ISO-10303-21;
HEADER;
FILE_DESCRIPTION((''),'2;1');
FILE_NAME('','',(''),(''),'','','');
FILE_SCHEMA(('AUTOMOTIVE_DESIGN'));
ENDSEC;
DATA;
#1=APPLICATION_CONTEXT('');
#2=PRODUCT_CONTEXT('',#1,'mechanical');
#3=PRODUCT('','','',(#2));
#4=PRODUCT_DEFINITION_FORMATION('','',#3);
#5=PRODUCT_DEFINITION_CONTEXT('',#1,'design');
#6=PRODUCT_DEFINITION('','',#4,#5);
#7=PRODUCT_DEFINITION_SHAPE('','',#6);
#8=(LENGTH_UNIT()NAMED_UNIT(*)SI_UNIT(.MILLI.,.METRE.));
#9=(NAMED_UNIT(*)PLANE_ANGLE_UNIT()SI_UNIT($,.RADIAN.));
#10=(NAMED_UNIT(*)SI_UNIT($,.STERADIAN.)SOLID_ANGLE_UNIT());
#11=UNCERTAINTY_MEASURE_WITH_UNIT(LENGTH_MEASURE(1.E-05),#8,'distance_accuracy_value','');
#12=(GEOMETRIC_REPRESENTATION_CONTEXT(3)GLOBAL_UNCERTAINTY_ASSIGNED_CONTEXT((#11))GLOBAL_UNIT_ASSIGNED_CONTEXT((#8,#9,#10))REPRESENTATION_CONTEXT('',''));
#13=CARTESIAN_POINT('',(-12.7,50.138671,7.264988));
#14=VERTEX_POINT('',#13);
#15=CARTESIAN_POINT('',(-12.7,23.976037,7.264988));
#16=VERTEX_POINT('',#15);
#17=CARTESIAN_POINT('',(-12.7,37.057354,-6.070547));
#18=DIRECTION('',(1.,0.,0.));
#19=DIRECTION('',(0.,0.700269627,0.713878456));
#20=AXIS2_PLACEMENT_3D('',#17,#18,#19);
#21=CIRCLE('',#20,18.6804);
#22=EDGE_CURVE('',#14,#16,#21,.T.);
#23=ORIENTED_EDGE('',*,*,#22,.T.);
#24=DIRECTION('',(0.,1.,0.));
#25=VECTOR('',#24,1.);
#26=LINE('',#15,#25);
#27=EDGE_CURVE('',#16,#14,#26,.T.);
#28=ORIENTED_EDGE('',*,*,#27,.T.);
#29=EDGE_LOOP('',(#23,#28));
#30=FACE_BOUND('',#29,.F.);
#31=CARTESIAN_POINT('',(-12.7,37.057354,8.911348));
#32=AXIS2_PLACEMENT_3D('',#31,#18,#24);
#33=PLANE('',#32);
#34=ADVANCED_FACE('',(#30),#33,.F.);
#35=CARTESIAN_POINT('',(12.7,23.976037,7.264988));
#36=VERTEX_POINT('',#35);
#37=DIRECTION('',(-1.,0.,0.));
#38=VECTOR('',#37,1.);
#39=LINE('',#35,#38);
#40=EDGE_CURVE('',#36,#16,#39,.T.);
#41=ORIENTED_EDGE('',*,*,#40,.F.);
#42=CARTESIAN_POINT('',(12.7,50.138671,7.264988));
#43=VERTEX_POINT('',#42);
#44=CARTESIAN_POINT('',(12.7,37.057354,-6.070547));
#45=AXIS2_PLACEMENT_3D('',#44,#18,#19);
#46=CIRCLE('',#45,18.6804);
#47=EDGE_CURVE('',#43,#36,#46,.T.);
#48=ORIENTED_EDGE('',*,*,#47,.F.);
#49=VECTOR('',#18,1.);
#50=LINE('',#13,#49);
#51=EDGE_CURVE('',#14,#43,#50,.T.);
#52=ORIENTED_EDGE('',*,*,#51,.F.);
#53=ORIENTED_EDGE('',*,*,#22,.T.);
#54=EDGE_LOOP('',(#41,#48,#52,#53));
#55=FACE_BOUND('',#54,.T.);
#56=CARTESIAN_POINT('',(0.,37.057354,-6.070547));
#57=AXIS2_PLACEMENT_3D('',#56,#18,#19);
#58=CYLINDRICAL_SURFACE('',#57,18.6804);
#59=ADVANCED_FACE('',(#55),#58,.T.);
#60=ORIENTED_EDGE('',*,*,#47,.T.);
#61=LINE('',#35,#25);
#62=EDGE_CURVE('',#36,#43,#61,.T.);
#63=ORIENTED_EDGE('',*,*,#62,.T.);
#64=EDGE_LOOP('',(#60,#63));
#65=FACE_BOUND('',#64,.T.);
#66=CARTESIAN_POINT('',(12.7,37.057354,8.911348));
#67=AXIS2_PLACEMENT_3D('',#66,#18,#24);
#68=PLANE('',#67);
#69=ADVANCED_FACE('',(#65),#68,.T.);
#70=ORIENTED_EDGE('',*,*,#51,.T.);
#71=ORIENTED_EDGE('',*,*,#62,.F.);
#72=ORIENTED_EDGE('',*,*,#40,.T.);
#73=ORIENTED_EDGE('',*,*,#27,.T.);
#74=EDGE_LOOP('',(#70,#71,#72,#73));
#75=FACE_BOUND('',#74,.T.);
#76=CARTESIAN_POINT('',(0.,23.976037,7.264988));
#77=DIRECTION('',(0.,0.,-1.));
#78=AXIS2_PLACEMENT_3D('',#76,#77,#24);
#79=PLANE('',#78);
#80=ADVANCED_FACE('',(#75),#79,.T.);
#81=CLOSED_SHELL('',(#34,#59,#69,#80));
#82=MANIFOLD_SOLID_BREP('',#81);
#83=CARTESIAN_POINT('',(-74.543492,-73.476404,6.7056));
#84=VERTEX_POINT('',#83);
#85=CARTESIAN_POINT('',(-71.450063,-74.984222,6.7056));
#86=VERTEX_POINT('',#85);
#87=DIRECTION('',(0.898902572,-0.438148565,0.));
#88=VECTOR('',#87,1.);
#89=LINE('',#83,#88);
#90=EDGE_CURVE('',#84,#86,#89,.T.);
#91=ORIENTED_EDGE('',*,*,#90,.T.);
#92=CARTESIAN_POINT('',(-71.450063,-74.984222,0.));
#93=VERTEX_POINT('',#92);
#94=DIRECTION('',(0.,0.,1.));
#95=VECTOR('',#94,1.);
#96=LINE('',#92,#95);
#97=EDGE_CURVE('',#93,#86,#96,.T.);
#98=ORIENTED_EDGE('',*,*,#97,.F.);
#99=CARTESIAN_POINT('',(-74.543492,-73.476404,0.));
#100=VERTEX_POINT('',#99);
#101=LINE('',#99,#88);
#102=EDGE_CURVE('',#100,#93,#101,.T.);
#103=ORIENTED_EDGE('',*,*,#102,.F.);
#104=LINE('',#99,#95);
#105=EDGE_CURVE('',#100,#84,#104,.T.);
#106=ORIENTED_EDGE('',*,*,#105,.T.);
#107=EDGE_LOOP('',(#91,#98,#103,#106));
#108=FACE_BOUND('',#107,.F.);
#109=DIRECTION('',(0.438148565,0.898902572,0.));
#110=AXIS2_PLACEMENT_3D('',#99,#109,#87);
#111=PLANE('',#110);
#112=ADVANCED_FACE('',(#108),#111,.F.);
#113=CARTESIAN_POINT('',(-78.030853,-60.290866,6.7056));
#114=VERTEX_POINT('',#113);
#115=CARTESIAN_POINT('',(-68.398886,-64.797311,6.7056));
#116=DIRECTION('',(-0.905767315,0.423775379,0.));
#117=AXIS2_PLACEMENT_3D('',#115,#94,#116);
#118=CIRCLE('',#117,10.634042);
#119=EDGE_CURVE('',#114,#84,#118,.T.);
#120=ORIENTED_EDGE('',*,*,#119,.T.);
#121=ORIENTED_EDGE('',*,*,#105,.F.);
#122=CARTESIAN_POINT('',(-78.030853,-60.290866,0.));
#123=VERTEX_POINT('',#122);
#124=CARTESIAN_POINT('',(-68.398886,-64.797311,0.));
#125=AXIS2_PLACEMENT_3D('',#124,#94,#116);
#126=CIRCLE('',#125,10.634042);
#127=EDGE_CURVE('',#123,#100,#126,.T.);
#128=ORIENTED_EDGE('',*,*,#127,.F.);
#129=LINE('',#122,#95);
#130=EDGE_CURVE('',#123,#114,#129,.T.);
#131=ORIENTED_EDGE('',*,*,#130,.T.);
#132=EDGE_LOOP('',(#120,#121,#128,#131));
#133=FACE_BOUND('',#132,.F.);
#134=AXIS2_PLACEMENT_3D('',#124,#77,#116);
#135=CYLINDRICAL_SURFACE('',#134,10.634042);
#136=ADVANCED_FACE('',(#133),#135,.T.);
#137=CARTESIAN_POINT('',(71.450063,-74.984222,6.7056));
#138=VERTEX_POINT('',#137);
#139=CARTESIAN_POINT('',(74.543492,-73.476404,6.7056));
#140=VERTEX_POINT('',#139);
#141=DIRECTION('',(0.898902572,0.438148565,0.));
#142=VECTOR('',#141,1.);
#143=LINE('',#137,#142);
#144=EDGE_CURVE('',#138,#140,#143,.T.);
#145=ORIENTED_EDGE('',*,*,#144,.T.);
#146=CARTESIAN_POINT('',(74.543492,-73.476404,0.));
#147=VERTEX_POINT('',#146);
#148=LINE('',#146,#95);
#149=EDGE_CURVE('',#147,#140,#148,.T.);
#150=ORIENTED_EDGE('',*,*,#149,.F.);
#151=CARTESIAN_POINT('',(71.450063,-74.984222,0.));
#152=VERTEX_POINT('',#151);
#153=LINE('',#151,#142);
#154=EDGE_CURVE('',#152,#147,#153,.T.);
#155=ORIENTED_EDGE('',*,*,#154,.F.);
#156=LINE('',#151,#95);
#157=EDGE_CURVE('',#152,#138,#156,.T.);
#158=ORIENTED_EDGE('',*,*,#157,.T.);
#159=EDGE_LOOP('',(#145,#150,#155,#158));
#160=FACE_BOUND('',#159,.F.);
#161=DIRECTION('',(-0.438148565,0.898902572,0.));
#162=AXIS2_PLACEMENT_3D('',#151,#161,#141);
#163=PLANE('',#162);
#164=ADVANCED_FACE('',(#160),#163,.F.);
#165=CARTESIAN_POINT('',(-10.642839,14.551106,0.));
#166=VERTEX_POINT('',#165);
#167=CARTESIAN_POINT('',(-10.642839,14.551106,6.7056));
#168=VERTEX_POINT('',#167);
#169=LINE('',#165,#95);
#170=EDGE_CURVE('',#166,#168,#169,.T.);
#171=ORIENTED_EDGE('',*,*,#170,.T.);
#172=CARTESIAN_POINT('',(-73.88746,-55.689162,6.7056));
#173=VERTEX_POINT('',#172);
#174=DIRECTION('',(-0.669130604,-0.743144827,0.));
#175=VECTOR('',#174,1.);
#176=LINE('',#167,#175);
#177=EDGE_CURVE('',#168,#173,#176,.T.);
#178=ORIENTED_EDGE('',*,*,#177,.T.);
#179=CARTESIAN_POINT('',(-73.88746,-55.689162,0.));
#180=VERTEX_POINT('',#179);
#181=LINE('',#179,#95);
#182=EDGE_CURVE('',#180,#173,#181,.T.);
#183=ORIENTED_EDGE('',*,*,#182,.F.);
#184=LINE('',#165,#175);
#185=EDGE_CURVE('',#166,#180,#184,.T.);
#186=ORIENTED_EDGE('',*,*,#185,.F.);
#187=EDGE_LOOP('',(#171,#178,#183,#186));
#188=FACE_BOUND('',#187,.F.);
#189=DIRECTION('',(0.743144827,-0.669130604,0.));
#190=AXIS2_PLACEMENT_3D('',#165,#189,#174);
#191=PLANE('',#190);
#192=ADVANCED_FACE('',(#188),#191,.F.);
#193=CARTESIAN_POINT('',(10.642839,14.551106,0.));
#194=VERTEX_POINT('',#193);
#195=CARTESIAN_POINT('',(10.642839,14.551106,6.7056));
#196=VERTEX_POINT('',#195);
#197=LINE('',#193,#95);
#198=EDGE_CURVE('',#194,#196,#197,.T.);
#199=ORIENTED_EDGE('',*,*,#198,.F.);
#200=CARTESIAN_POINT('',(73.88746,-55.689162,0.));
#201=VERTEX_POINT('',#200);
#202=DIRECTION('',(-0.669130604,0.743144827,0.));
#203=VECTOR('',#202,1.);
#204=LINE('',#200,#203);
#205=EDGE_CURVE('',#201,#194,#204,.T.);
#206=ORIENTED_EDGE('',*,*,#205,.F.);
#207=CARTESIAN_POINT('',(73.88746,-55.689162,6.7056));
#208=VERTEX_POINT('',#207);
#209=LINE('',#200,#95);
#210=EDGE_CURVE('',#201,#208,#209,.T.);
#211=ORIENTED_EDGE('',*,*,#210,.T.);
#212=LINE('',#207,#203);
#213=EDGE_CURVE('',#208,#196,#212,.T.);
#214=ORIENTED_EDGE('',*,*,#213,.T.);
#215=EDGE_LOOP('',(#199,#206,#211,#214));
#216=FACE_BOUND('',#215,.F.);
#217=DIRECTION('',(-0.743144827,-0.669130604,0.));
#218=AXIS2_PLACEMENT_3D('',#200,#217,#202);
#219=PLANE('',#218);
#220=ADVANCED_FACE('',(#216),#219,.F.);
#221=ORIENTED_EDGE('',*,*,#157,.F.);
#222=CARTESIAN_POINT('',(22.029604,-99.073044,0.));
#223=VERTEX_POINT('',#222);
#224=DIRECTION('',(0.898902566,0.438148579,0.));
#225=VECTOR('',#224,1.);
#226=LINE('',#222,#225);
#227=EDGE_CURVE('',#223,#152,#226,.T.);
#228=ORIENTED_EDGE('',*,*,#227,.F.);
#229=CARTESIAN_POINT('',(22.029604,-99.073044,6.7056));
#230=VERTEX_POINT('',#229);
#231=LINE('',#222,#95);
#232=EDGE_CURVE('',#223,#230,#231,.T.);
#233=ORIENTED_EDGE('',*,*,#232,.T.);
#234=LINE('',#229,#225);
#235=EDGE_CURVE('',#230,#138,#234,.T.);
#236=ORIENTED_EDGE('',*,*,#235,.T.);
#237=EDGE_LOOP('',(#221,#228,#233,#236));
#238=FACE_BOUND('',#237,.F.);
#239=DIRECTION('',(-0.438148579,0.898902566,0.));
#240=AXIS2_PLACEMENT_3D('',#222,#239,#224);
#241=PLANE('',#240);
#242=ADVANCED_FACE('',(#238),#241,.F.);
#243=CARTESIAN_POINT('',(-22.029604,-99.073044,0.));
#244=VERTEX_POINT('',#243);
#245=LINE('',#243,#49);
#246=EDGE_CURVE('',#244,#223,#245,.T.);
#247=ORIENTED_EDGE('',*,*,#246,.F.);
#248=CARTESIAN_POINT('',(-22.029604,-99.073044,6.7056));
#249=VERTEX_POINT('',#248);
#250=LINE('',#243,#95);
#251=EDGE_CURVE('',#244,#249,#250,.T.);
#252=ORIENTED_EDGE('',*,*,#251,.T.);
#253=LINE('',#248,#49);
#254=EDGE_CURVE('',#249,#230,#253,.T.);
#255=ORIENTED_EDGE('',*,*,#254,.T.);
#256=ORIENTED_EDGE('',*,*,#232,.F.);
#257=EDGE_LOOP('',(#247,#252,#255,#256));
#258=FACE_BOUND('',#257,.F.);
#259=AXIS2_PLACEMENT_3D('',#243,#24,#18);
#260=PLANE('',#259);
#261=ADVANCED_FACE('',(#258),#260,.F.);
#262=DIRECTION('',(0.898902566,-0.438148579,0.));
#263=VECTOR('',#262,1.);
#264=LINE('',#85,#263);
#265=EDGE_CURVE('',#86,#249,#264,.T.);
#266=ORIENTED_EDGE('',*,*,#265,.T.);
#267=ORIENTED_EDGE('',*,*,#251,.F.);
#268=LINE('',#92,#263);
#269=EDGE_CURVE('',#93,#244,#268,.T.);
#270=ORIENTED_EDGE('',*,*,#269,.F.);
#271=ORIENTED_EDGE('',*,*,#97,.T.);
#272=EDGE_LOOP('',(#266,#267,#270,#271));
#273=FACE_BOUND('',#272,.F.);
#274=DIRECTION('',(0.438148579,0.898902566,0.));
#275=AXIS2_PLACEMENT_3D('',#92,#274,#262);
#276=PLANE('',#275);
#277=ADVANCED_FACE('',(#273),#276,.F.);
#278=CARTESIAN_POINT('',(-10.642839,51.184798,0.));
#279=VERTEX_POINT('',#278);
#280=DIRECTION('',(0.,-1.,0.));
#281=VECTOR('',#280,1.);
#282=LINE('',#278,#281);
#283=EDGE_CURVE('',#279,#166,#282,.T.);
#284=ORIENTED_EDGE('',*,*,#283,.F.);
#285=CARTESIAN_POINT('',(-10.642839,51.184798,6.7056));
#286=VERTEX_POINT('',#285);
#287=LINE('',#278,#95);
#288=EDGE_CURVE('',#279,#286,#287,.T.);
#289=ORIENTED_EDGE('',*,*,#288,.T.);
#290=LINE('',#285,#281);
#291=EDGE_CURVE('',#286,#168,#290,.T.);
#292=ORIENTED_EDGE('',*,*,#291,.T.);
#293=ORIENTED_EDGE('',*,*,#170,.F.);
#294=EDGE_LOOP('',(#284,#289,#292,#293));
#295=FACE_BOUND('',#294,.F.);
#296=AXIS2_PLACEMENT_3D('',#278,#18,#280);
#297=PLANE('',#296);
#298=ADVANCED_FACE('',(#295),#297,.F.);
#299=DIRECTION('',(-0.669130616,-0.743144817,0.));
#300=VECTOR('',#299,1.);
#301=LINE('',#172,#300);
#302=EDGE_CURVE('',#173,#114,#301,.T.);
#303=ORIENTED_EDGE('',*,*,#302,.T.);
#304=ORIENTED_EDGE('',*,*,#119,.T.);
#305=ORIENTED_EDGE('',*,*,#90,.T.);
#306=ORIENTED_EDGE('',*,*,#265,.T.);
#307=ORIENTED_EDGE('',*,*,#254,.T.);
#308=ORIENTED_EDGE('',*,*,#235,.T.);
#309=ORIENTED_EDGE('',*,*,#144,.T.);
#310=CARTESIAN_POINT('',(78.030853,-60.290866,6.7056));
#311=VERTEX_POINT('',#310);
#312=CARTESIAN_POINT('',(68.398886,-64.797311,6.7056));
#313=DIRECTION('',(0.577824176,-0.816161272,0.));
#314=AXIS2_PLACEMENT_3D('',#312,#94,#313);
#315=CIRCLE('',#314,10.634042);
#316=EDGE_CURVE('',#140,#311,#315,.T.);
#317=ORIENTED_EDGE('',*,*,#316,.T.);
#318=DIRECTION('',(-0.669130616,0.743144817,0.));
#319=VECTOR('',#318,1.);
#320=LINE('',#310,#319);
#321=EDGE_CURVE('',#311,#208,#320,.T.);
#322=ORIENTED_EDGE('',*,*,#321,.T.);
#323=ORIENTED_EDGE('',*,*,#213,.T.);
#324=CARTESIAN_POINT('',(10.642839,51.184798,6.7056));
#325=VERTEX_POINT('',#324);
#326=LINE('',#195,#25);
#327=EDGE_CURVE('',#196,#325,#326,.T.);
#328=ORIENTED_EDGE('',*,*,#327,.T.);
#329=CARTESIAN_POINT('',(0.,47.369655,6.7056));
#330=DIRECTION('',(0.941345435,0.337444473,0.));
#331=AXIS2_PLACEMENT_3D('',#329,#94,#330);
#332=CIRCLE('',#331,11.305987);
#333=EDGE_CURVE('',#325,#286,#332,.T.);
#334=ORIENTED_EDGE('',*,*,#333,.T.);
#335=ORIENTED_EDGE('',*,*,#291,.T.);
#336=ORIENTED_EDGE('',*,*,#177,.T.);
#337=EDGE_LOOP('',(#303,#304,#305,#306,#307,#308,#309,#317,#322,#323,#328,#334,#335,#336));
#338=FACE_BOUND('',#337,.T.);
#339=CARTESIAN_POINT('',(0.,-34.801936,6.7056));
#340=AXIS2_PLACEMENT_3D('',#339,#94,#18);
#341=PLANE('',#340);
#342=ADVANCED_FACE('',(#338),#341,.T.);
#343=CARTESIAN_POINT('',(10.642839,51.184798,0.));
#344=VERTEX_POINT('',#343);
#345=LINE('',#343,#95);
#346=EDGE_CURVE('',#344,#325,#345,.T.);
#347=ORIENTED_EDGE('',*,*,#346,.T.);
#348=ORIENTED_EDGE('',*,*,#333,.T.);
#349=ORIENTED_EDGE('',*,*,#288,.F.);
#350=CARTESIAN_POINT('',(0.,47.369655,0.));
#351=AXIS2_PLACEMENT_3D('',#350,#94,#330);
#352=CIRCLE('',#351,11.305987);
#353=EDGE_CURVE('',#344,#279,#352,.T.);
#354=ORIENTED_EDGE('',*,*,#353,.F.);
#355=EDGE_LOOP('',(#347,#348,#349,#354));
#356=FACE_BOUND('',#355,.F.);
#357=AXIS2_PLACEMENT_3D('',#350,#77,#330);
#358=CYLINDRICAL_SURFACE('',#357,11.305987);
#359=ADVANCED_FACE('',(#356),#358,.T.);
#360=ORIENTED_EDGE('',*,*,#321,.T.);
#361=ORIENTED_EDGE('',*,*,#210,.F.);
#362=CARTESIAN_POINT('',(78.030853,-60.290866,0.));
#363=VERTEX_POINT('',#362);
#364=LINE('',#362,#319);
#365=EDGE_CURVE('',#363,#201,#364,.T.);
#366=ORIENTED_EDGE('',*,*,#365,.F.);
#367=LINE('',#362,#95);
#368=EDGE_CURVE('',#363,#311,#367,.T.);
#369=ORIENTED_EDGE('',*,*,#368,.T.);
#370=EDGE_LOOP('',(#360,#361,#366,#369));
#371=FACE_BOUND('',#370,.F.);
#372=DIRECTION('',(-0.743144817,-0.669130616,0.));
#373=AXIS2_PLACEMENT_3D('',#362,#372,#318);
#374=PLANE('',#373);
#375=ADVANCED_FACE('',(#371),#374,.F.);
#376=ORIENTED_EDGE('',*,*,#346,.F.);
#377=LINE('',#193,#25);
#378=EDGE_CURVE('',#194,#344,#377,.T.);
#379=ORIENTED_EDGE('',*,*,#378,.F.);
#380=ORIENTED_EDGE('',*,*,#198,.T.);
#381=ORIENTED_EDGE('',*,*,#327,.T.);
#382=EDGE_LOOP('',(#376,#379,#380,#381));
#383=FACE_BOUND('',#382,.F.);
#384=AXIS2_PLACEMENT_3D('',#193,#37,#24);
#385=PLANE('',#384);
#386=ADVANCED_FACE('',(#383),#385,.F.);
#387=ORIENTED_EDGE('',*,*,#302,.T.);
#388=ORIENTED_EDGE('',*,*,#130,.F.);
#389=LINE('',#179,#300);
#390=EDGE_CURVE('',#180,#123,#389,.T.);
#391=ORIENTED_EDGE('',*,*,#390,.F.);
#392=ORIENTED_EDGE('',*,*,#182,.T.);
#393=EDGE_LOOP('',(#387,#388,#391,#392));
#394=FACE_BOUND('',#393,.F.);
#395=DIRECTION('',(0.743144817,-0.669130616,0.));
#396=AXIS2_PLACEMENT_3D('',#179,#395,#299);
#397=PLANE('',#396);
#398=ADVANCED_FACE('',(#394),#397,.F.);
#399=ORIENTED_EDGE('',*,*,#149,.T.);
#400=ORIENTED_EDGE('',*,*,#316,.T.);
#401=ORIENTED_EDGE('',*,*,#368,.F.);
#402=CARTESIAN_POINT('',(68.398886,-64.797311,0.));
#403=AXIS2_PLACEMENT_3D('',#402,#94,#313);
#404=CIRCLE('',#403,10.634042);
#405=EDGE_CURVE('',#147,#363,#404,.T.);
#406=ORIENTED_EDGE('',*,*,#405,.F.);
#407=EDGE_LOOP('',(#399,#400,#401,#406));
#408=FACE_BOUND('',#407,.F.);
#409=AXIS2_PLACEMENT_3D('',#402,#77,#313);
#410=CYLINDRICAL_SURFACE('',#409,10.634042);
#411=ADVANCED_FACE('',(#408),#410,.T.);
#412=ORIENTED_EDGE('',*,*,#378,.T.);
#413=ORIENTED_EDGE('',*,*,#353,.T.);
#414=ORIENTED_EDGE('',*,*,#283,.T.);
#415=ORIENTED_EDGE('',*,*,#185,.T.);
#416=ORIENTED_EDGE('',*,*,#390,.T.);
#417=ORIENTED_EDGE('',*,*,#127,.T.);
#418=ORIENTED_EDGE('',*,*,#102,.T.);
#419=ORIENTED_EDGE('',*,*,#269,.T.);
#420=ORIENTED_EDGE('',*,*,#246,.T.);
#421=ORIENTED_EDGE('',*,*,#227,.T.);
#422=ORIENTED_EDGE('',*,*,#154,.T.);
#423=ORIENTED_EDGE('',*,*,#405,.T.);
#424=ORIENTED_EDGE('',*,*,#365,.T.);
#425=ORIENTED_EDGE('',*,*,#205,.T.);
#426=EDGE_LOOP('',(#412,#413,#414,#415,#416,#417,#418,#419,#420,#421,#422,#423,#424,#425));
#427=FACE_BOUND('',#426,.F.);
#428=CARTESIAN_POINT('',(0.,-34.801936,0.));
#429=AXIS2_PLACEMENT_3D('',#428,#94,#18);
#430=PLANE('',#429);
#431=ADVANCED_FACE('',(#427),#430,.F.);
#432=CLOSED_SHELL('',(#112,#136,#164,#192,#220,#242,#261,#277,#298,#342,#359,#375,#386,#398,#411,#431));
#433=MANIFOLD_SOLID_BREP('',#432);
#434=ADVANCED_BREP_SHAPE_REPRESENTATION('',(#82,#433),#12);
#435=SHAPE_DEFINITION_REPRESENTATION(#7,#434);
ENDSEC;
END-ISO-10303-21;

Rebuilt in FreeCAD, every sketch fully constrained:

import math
import FreeCAD as App
import Part
import Sketcher

V = App.Vector
Q = App.Units.Quantity

doc = App.newDocument("Part")
params = doc.addObject("Spreadsheet::Sheet", "Params")
for row, (alias, value) in enumerate([
    ("pad1_length", "0.264 in"),
    ("pad2_length", "1 in"),
], start=1):
    params.set(f"A{row}", alias)
    params.set(f"B{row}", "=" + value)
    params.setAlias(f"B{row}", alias)

body = doc.addObject("PartDesign::Body", "Body")

# Sketch on XY plane
sketch1 = body.newObject("Sketcher::SketchObject", "Sketch")
sketch1.AttachmentSupport = (doc.getObject("XY_Plane"), [""])
sketch1.MapMode = "FlatFace"
sketch1.addGeometry([
    Part.ArcOfCircle(Part.Circle(V(0, 47.4, 0), V(0, 0, 1), 11.3), math.radians(20), math.radians(160)),  # 0
    Part.LineSegment(V(-10.6, 51.2, 0), V(-10.6, 14.6, 0)),  # 1
    Part.LineSegment(V(-10.6, 14.6, 0), V(-73.9, -55.7, 0)),  # 2
    Part.LineSegment(V(-73.9, -55.7, 0), V(-78, -60.3, 0)),  # 3
    Part.ArcOfCircle(Part.Circle(V(-68.4, -64.8, 0), V(0, 0, 1), 10.6), math.radians(155), math.radians(235)),  # 4
    Part.LineSegment(V(-74.5, -73.5, 0), V(-71.5, -75, 0)),  # 5
    Part.LineSegment(V(-71.5, -75, 0), V(-22, -99.1, 0)),  # 6
    Part.LineSegment(V(-22, -99.1, 0), V(22, -99.1, 0)),  # 7
    Part.LineSegment(V(22, -99.1, 0), V(71.5, -75, 0)),  # 8
    Part.LineSegment(V(71.5, -75, 0), V(74.5, -73.5, 0)),  # 9
    Part.ArcOfCircle(Part.Circle(V(68.4, -64.8, 0), V(0, 0, 1), 10.6), math.radians(-55), math.radians(25)),  # 10
    Part.LineSegment(V(78, -60.3, 0), V(73.9, -55.7, 0)),  # 11
    Part.LineSegment(V(73.9, -55.7, 0), V(10.6, 14.6, 0)),  # 12
    Part.LineSegment(V(10.6, 14.6, 0), V(10.6, 51.2, 0)),  # 13
], False)
sketch1.addConstraint([
    Sketcher.Constraint("Coincident", 0, 2, 1, 1),
    Sketcher.Constraint("Coincident", 1, 2, 2, 1),
    Sketcher.Constraint("Coincident", 2, 2, 3, 1),
    Sketcher.Constraint("Coincident", 3, 2, 4, 1),
    Sketcher.Constraint("Coincident", 4, 2, 5, 1),
    Sketcher.Constraint("Coincident", 5, 2, 6, 1),
    Sketcher.Constraint("Coincident", 6, 2, 7, 1),
    Sketcher.Constraint("Coincident", 7, 2, 8, 1),
    Sketcher.Constraint("Coincident", 8, 2, 9, 1),
    Sketcher.Constraint("Coincident", 9, 2, 10, 1),
    Sketcher.Constraint("Coincident", 10, 2, 11, 1),
    Sketcher.Constraint("Coincident", 11, 2, 12, 1),
    Sketcher.Constraint("Coincident", 12, 2, 13, 1),
    Sketcher.Constraint("Coincident", 13, 2, 0, 1),
    Sketcher.Constraint("Vertical", 1),
    Sketcher.Constraint("Horizontal", 7),
    Sketcher.Constraint("Vertical", 13),
    Sketcher.Constraint("Equal", 4, 10),
    Sketcher.Constraint("Symmetric", 4, 3, 10, 3, -2),
    Sketcher.Constraint("Symmetric", 5, 2, 8, 2, -2),
    Sketcher.Constraint("Symmetric", 2, 2, 11, 2, -2),
    Sketcher.Constraint("Symmetric", 1, 2, 12, 2, -2),
    Sketcher.Constraint("PointOnObject", 0, 3, -2),
    Sketcher.Constraint("Parallel", 2, 3),
    Sketcher.Constraint("Parallel", 5, 6),
    Sketcher.Constraint("Parallel", 8, 9),
    Sketcher.Constraint("Parallel", 11, 12),
    Sketcher.Constraint("Horizontal", 4, 2, 9, 2),
    Sketcher.Constraint("Angle", 2, Q("-132 deg")),
    Sketcher.Constraint("Radius", 4, 10.634042),
    Sketcher.Constraint("Radius", 0, 11.305987),
    Sketcher.Constraint("DistanceY", 1, 2, 1, 1, 36.633692),
    Sketcher.Constraint("DistanceY", 4, 2, 0, 2, 124.661202),
    Sketcher.Constraint("DistanceX", 1, 2, 8, 2, 82.092902),
    Sketcher.Constraint("Distance", 5, 3.44134),
    Sketcher.Constraint("Distance", 6, 54.978661),
    Sketcher.Constraint("DistanceX", 7, 1, 7, 2, 44.059208),
    Sketcher.Constraint("DistanceY", 4, 3, -1, 1, 64.797311),
    Sketcher.Constraint("DistanceX", 0, 2, -1, 1, 10.642839),
    Sketcher.Constraint("DistanceX", 2, 2, -1, 1, 73.88746),
    Sketcher.Constraint("DistanceX", 4, 3, 10, 3, 136.797771),
])
pad1 = body.newObject("PartDesign::Pad", "Pad")
pad1.Profile = sketch1
pad1.setExpression("Length", "Params.pad1_length")
body2 = doc.addObject("PartDesign::Body", "Body001")

# Sketch on YZ plane
sketch2 = body2.newObject("Sketcher::SketchObject", "Sketch001")
sketch2.AttachmentSupport = (doc.getObject("YZ_Plane001"), [""])
sketch2.MapMode = "FlatFace"
sketch2.addGeometry([
    Part.LineSegment(V(24, 7, 0), V(50, 7, 0)),
    Part.ArcOfCircle(Part.Circle(V(37, -6, 0), V(0, 0, 1), 19), math.radians(46), math.radians(134)),
], False)
sketch2.addConstraint([
    Sketcher.Constraint("Coincident", 0, 1, 1, 2),
    Sketcher.Constraint("Coincident", 1, 1, 0, 2),
    Sketcher.Constraint("Horizontal", 0),
    Sketcher.Constraint("Radius", 1, 18.6804),
    Sketcher.Constraint("DistanceX", 0, 1, 0, 2, 26.162634),
    Sketcher.Constraint("DistanceX", -1, 1, 1, 1, 50.138671),
    Sketcher.Constraint("DistanceY", 1, 3, -1, 1, 6.070547),
])
pad2 = body2.newObject("PartDesign::Pad", "Pad001")
pad2.Profile = sketch2
pad2.setExpression("Length", "Params.pad2_length")
pad2.Midplane = True

doc.recompute()
